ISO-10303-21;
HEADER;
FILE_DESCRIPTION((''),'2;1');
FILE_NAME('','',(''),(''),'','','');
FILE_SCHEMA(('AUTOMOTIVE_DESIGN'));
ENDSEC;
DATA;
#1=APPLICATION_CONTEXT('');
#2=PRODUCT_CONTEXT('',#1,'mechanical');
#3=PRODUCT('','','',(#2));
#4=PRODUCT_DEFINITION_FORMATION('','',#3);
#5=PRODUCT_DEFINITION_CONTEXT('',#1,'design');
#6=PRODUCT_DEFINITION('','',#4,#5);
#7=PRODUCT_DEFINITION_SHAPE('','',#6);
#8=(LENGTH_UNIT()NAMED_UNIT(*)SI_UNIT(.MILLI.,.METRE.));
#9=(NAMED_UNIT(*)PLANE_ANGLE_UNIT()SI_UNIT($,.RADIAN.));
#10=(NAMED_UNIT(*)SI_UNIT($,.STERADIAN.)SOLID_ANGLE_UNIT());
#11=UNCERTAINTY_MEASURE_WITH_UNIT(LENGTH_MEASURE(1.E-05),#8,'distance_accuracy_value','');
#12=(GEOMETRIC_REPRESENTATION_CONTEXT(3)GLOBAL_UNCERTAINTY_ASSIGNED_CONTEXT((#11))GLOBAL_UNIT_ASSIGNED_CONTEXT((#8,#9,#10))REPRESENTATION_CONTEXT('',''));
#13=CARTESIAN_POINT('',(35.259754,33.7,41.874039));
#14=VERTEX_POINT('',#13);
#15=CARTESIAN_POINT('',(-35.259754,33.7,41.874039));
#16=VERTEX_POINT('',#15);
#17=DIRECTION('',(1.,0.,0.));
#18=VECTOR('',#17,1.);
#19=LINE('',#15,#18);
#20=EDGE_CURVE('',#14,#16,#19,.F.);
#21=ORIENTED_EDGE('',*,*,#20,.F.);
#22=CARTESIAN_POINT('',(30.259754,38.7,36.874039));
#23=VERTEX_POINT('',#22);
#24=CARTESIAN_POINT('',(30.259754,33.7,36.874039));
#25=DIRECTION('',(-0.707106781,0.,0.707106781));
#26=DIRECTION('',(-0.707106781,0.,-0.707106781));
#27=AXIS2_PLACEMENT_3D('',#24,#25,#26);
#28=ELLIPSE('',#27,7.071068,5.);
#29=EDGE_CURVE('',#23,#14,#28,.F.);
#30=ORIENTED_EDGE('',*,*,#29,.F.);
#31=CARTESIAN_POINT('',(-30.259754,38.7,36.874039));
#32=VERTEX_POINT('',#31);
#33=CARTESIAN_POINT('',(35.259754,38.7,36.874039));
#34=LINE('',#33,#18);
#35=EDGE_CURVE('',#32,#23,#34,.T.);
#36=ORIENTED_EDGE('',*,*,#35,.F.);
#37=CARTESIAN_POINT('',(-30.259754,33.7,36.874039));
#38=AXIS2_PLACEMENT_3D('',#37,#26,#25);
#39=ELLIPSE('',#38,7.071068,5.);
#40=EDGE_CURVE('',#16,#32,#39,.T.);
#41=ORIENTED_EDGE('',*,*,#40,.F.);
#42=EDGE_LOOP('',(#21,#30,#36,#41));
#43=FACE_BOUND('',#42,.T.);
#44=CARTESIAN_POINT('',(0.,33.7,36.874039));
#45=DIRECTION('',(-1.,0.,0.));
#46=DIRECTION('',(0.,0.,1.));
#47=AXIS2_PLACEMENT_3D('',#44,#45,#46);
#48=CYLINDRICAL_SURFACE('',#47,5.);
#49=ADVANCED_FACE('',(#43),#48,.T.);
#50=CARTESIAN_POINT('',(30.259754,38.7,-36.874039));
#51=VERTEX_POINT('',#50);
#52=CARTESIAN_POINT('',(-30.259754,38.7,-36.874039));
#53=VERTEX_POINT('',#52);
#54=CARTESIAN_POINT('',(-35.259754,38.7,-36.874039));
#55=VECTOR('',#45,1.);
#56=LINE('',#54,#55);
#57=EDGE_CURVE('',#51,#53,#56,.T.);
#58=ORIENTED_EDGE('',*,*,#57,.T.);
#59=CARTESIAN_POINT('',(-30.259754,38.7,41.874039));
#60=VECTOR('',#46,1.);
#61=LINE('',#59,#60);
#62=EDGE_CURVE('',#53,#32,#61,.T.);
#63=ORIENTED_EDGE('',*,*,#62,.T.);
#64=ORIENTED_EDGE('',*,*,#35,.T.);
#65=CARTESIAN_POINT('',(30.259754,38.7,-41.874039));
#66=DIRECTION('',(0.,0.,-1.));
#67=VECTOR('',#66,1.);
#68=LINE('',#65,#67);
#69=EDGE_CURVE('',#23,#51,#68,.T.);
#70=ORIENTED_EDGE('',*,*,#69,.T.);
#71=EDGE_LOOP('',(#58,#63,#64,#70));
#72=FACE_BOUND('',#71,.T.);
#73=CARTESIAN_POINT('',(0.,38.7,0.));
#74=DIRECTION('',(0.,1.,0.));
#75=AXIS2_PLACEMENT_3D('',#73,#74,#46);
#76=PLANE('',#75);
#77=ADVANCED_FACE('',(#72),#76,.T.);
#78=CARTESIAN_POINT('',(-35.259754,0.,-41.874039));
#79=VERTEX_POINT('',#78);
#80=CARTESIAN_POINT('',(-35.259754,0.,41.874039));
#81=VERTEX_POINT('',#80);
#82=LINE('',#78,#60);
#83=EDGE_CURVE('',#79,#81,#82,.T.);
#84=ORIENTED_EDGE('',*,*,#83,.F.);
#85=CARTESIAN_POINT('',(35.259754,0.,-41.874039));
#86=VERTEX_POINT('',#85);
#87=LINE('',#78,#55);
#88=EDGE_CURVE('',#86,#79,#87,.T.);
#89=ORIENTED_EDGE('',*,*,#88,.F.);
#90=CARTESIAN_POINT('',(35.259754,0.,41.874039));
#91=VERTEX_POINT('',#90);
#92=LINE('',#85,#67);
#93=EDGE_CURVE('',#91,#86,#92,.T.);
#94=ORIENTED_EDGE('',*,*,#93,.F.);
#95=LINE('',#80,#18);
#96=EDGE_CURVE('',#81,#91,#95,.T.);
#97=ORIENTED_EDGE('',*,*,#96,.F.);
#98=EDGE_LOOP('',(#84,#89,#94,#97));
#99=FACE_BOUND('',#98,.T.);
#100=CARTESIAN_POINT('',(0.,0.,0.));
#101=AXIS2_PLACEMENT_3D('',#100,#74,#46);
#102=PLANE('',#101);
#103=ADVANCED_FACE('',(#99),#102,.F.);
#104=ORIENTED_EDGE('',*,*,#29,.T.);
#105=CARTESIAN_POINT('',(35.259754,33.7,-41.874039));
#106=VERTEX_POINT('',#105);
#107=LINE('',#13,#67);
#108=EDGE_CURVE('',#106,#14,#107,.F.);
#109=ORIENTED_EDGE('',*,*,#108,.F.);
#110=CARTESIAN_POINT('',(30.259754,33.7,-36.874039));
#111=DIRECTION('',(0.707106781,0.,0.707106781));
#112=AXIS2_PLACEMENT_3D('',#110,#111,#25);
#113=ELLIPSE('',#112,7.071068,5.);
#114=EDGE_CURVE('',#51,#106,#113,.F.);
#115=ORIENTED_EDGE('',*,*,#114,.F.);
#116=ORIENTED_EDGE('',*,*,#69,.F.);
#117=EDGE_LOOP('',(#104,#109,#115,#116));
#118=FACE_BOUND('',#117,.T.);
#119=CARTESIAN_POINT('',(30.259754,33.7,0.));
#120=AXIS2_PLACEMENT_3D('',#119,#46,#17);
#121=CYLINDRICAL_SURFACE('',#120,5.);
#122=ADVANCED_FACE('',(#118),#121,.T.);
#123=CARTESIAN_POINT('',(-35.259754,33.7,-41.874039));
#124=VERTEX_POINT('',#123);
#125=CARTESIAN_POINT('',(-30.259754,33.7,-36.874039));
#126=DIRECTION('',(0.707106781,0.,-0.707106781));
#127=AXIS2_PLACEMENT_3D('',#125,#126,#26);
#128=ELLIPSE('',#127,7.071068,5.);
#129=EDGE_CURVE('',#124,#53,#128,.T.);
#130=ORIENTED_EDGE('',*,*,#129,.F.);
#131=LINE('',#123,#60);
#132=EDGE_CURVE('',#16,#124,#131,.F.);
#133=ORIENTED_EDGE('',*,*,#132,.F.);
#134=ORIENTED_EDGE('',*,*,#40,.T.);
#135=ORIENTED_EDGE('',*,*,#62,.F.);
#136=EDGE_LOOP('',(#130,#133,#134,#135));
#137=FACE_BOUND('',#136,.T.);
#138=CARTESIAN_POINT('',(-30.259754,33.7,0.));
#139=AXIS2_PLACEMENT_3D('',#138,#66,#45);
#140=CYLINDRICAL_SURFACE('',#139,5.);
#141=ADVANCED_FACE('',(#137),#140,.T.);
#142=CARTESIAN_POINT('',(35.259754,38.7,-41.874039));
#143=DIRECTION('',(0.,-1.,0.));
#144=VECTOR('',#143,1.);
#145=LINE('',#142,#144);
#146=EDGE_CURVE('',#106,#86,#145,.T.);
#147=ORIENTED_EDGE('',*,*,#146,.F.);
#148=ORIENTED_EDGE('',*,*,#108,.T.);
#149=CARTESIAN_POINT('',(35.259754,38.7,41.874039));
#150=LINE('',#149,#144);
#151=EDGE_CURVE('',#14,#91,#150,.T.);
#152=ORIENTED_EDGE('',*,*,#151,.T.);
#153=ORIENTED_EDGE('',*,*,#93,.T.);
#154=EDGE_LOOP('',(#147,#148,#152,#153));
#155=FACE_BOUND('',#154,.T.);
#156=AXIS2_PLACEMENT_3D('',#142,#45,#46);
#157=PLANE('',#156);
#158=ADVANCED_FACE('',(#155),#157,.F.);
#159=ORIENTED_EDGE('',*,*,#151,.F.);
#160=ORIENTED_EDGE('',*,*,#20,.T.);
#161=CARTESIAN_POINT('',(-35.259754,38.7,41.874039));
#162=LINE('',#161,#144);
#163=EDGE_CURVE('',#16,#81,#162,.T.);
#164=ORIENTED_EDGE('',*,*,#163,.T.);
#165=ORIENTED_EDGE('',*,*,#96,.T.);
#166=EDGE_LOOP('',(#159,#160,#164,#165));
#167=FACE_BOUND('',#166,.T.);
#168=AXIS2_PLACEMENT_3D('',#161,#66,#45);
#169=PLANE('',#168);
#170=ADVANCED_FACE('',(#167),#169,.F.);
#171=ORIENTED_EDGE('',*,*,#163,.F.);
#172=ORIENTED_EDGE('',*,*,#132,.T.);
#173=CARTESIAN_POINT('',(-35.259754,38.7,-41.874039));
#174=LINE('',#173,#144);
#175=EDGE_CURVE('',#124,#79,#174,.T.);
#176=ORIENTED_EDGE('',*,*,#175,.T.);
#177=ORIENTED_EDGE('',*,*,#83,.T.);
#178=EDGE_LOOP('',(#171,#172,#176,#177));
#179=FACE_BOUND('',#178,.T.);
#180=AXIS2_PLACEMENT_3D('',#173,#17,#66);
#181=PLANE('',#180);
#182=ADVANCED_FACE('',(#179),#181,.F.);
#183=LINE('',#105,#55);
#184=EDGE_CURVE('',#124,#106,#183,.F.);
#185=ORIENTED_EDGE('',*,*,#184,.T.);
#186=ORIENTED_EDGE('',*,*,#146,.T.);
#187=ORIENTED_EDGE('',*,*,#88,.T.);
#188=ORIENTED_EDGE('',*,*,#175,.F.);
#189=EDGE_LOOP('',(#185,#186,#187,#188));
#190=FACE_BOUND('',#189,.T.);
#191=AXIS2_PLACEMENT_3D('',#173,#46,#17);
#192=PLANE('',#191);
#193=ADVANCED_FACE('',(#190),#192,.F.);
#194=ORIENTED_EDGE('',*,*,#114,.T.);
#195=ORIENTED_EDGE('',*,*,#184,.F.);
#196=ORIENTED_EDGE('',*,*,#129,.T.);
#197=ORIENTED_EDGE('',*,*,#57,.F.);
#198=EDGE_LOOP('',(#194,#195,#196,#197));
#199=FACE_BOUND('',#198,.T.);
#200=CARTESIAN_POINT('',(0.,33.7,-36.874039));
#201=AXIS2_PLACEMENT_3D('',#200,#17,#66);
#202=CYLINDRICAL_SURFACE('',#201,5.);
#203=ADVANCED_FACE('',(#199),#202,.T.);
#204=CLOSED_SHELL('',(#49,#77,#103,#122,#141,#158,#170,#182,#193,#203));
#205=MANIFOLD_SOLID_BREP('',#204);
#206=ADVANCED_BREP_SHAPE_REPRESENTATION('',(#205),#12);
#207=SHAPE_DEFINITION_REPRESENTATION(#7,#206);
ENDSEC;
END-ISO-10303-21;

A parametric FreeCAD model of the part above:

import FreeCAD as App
import Part
import Sketcher
Q = App.Units.Quantity


def edges_at(feature, points):
    """Names of the edges that pass closest to the given points."""
    edges = feature.Shape.Edges
    near = lambda p: min(range(len(edges)), key=lambda i: edges[i].distToShape(Part.Vertex(*p))[0])
    return sorted({f"Edge{near(p) + 1}" for p in points})

doc = App.newDocument("Part")
body = doc.addObject("PartDesign::Body", "Body")

sketch1 = doc.addObject("Sketcher::SketchObject", "Sketch")
body.addObject(sketch1)
sketch1.AttachmentSupport = (doc.XZ_Plane, [""])
sketch1.MapMode = "FlatFace"
sketch1.addGeometry(Part.LineSegment(App.Vector(-35.259754, -41.87404, 0), App.Vector(-35.259754, 41.87404, 0)), False)
sketch1.addGeometry(Part.LineSegment(App.Vector(-35.259754, 41.87404, 0), App.Vector(35.259754, 41.87404, 0)), False)
sketch1.addGeometry(Part.LineSegment(App.Vector(35.259754, 41.87404, 0), App.Vector(35.259754, -41.87404, 0)), False)
sketch1.addGeometry(Part.LineSegment(App.Vector(35.259754, -41.87404, 0), App.Vector(-35.259754, -41.87404, 0)), False)
sketch1.addConstraint(Sketcher.Constraint("Coincident", 0, 2, 1, 1))
sketch1.addConstraint(Sketcher.Constraint("Coincident", 1, 2, 2, 1))
sketch1.addConstraint(Sketcher.Constraint("Coincident", 2, 2, 3, 1))
sketch1.addConstraint(Sketcher.Constraint("Coincident", 3, 2, 0, 1))
sketch1.addConstraint(Sketcher.Constraint("Vertical", 0))
sketch1.addConstraint(Sketcher.Constraint("Horizontal", 1))
sketch1.addConstraint(Sketcher.Constraint("Vertical", 2))
sketch1.addConstraint(Sketcher.Constraint("Horizontal", 3))
sketch1.addConstraint(Sketcher.Constraint("Symmetric", 0, 2, 2, 2, -1, 1))
sketch1.addConstraint(Sketcher.Constraint("DistanceX", 1, 1, 1, 2, Q("70.519509 mm")))
sketch1.addConstraint(Sketcher.Constraint("DistanceY", 0, 1, 0, 2, Q("83.748079 mm")))
pad1 = doc.addObject("PartDesign::Pad", "Pad")
body.addObject(pad1)
pad1.Profile = sketch1
pad1.Length = 38.7
pad1.Reversed = True
doc.recompute()

fillet = doc.addObject("PartDesign::Fillet", "Fillet")
body.addObject(fillet)
fillet.Base = (pad1, edges_at(pad1, [
    (35.26, 38.7, 0),
    (0, 38.7, -41.874),
    (-35.26, 38.7, 0),
    (0, 38.7, 41.874),
]))
fillet.Radius = 5

doc.recompute()
